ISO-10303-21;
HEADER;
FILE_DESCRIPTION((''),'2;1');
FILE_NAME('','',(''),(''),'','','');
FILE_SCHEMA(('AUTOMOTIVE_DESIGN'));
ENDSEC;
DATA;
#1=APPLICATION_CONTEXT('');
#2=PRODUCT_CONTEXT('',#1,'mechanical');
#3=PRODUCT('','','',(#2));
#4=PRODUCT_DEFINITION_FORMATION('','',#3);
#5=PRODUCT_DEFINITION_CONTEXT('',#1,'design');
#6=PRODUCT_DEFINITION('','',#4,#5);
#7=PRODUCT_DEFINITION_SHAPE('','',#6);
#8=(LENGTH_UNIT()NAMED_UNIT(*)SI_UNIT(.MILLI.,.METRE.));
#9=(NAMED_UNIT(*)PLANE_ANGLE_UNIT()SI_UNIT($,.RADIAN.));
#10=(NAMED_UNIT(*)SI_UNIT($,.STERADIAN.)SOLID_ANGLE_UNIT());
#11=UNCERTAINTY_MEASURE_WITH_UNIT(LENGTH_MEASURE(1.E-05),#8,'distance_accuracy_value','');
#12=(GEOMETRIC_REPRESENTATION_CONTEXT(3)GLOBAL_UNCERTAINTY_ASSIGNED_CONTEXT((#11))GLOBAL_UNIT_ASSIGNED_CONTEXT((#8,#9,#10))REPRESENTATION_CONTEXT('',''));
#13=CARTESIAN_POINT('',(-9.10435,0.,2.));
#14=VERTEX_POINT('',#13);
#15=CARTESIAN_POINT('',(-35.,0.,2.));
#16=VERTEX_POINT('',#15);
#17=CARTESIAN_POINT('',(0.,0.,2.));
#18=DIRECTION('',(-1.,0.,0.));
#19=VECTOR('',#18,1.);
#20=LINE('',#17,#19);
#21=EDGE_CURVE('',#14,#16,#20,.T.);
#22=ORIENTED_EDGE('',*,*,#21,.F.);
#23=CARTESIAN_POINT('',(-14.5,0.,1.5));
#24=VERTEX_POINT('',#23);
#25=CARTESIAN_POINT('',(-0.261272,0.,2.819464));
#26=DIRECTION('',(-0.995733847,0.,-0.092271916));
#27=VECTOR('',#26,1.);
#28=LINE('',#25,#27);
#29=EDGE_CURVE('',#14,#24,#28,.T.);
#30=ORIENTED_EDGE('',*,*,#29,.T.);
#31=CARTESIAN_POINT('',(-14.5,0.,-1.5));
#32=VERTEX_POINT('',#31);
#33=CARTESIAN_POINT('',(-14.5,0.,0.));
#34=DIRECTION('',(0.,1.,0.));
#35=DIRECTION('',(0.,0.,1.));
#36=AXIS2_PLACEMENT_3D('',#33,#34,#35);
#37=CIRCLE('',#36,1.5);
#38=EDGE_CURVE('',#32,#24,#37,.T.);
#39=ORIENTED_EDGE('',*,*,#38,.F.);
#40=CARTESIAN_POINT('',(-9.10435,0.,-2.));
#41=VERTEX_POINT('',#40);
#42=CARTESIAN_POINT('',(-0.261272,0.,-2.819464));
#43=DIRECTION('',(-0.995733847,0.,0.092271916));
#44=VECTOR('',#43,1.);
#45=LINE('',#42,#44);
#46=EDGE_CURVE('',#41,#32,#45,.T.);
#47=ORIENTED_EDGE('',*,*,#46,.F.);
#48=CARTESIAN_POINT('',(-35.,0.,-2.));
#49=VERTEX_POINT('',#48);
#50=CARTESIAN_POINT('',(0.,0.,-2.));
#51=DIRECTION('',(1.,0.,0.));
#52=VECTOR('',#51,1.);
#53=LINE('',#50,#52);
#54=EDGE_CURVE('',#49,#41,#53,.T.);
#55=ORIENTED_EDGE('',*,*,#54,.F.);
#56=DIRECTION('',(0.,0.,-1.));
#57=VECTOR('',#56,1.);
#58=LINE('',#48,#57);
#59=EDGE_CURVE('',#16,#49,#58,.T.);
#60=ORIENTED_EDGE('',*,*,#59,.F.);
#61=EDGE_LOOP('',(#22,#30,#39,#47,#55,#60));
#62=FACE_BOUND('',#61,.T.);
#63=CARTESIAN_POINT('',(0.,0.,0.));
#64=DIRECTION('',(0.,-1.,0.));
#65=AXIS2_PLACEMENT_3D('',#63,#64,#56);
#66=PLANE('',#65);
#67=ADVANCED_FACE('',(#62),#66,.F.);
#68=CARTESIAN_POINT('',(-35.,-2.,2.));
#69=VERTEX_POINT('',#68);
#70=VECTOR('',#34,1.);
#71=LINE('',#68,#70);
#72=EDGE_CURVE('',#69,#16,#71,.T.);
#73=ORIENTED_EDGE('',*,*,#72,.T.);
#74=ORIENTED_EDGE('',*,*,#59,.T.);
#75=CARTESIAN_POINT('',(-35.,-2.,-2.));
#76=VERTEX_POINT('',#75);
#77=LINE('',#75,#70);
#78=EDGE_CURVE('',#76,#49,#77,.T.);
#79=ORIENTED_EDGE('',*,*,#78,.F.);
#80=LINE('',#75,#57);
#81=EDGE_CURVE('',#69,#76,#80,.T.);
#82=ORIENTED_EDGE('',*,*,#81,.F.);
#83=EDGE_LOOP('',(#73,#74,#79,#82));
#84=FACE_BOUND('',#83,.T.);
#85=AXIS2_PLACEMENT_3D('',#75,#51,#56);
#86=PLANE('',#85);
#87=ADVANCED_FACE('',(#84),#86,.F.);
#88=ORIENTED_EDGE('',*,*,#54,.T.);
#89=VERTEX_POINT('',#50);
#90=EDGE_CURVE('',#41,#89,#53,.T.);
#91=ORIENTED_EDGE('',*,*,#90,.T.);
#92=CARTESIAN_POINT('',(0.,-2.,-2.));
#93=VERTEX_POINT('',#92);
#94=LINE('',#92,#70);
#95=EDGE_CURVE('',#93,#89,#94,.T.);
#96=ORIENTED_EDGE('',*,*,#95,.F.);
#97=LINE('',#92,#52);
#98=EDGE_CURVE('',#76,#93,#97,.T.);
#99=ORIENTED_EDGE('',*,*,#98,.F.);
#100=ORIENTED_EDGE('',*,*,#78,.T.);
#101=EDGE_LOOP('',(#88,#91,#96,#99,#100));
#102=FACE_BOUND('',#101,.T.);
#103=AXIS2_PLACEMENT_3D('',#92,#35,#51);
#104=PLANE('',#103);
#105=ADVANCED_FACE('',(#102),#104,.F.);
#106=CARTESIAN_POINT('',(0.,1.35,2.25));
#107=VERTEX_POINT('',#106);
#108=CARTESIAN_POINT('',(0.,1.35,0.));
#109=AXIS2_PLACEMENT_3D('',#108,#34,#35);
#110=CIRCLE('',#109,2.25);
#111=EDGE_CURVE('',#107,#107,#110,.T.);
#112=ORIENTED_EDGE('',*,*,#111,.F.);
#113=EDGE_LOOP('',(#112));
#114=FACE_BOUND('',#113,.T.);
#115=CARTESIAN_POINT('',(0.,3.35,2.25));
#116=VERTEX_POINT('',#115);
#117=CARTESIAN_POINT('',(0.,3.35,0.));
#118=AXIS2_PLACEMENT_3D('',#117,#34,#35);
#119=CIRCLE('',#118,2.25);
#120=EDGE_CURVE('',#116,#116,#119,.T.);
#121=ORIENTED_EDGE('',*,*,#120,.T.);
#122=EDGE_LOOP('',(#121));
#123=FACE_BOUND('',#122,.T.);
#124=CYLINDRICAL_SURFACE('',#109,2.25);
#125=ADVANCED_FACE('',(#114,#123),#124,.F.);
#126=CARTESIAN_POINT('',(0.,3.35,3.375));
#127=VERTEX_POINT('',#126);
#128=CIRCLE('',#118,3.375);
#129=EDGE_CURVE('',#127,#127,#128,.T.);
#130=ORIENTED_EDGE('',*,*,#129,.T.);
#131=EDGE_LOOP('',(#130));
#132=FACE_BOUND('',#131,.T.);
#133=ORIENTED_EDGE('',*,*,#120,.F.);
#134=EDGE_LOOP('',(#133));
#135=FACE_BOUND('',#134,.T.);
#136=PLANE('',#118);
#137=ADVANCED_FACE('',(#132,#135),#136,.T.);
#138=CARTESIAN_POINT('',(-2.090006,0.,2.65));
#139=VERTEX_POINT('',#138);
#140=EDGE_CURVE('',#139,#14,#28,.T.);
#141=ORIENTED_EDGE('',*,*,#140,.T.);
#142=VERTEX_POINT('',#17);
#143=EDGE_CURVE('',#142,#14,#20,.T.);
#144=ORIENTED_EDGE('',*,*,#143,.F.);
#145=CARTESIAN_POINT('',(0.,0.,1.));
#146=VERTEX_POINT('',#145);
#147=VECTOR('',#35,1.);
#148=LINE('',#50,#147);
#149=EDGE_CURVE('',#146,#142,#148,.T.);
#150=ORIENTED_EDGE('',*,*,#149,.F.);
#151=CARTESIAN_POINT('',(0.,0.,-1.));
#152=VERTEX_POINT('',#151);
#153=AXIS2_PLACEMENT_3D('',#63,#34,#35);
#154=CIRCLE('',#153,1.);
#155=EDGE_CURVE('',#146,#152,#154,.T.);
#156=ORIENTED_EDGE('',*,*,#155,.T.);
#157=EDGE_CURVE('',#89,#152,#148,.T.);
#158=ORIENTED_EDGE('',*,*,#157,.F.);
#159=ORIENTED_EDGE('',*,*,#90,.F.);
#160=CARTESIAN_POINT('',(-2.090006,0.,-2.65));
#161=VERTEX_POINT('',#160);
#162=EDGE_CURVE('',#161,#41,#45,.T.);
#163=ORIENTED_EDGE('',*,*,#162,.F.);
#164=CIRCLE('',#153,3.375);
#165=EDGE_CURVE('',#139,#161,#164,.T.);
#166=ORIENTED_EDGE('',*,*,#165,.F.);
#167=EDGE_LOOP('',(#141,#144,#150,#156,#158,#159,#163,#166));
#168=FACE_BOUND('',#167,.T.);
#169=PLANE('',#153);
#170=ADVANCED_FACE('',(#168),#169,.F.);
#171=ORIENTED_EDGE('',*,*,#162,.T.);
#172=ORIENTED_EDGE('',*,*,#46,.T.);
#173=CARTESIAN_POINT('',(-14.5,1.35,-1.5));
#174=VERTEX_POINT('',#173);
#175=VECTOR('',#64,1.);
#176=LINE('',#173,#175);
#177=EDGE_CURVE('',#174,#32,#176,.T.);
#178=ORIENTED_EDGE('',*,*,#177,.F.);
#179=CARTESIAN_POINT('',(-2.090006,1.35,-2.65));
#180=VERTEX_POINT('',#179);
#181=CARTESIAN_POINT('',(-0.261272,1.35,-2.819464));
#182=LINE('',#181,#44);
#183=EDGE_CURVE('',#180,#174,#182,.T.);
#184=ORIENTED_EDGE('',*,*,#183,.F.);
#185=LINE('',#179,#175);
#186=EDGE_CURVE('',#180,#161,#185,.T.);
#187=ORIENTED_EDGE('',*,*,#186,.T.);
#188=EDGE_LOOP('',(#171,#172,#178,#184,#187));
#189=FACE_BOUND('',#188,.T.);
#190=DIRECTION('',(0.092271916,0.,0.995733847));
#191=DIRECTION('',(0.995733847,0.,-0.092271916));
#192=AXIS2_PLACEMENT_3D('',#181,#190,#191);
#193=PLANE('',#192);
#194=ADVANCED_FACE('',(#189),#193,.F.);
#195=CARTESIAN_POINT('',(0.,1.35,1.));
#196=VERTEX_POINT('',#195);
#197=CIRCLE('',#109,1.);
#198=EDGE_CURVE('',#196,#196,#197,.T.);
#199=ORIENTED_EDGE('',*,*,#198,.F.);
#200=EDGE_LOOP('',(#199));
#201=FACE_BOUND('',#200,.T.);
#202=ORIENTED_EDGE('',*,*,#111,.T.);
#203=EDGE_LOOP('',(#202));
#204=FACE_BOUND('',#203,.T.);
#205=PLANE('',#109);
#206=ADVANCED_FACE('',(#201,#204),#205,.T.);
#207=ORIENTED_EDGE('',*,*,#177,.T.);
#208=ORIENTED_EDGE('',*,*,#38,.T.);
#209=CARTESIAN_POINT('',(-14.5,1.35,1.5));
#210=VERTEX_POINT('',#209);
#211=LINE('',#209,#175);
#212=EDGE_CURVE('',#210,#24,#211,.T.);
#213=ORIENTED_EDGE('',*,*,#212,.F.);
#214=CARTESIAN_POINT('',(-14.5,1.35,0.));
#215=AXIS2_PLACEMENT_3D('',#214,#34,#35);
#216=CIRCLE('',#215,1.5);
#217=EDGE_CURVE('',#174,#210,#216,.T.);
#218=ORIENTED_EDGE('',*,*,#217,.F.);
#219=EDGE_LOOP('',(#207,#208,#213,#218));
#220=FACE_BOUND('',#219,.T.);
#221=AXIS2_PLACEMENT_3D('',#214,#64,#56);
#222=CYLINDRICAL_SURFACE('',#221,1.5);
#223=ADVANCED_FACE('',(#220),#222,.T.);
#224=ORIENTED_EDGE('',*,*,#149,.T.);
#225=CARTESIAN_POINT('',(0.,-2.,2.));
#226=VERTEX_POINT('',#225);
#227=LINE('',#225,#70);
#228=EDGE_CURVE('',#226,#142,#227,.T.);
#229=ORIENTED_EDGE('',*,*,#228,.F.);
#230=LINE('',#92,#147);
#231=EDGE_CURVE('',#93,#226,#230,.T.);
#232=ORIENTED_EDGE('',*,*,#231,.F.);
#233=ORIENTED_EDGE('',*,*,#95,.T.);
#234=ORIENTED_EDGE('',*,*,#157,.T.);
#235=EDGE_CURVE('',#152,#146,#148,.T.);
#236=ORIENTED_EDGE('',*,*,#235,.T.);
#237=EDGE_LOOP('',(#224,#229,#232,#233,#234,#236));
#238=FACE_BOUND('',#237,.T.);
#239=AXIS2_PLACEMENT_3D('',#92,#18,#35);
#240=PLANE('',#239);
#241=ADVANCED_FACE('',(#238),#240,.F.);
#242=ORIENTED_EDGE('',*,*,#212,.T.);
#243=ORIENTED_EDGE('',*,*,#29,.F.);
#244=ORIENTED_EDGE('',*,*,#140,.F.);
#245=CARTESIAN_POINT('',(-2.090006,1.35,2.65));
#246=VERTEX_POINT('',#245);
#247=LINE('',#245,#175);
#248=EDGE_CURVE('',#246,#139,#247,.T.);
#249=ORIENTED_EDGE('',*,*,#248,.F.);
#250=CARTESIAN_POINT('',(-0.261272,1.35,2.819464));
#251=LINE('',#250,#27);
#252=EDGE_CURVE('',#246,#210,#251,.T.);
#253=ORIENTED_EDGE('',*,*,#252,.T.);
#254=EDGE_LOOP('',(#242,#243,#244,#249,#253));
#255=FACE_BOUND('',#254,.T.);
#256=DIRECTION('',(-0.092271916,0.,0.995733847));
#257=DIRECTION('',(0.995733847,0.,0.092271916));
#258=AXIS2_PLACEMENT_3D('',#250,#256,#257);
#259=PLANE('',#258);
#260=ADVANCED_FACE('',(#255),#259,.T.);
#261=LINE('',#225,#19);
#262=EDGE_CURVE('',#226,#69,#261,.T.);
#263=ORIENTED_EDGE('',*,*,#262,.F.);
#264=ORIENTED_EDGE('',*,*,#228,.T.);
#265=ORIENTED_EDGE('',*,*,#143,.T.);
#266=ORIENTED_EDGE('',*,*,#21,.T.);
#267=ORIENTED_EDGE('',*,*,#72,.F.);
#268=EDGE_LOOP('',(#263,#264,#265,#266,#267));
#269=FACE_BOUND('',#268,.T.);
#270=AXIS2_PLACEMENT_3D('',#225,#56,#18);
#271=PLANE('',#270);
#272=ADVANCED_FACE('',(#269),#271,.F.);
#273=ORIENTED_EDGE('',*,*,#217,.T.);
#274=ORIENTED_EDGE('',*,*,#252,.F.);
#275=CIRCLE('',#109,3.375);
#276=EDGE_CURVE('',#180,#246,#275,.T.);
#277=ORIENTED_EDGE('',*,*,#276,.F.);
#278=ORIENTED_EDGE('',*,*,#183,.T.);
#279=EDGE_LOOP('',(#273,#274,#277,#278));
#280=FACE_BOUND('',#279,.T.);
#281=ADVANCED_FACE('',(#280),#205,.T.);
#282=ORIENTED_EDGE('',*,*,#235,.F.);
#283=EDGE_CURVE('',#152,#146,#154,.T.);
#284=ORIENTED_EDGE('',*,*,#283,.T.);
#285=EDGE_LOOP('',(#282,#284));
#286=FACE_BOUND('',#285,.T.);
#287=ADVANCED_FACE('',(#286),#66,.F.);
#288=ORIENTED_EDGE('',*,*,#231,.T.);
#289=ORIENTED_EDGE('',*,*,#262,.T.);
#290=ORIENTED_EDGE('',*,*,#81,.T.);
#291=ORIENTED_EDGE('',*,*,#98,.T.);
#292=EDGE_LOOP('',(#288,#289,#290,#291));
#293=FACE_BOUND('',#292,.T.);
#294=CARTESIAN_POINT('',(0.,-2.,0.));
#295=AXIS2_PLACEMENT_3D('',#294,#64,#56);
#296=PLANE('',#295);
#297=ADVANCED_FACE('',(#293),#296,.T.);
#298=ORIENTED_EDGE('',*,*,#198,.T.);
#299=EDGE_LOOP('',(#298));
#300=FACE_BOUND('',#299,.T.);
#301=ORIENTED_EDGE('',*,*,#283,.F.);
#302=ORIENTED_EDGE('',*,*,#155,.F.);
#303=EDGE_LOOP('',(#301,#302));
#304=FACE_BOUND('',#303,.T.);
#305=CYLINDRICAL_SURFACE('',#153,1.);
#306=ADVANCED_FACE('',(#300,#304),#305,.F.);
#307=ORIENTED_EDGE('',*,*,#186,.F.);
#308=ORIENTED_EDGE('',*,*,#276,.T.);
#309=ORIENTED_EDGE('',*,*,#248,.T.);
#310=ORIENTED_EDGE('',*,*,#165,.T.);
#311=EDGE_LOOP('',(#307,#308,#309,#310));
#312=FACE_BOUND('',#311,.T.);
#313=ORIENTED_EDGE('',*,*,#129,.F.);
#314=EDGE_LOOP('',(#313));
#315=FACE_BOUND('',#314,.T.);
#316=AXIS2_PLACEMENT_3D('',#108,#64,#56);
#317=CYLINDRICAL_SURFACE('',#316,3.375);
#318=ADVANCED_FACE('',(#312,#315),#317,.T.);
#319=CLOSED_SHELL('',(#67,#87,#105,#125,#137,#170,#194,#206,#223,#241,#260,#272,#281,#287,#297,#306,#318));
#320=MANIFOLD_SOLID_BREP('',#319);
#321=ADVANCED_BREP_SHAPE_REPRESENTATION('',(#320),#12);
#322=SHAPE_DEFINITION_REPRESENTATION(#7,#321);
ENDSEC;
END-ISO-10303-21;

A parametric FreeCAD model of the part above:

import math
import FreeCAD as App
import Part
import Sketcher

V = App.Vector

doc = App.newDocument("Part")
body = doc.addObject("PartDesign::Body", "Body")

sketch1 = doc.addObject("Sketcher::SketchObject", "Sketch")
body.addObject(sketch1)
sketch1.AttachmentSupport = (doc.XZ_Plane, [""])
sketch1.MapMode = "FlatFace"
sketch1.addGeometry(Part.ArcOfCircle(Part.Circle(V(-14.5, 0, 0), V(0, 0, 1), 1.5), math.radians(90), math.radians(270)), False)
sketch1.addGeometry(Part.LineSegment(V(-14.5, 1.5, 0), V(-2.1, 2.6, 0)), False)
sketch1.addGeometry(Part.ArcOfCircle(Part.Circle(V(0, 0, 0), V(0, 0, 1), 3.4), math.radians(0), math.radians(128)), False)
sketch1.addGeometry(Part.ArcOfCircle(Part.Circle(V(0, 0, 0), V(0, 0, 1), 3.4), math.radians(-128), math.radians(0)), False)
sketch1.addGeometry(Part.LineSegment(V(-2.1, -2.6, 0), V(-14.5, -1.5, 0)), False)
sketch1.addConstraint(Sketcher.Constraint("Coincident", 0, 1, 1, 1))
sketch1.addConstraint(Sketcher.Constraint("Coincident", 1, 2, 2, 2))
sketch1.addConstraint(Sketcher.Constraint("Tangent", 2, 1, 3, 2))
sketch1.addConstraint(Sketcher.Constraint("Coincident", 3, 1, 4, 1))
sketch1.addConstraint(Sketcher.Constraint("Coincident", 4, 2, 0, 2))
sketch1.addConstraint(Sketcher.Constraint("Coincident", 2, 3, -1, 1))
sketch1.addConstraint(Sketcher.Constraint("Equal", 2, 3))
sketch1.addConstraint(Sketcher.Constraint("Symmetric", 0, 1, 4, 2, -1))
sketch1.addConstraint(Sketcher.Constraint("PointOnObject", 2, 1, -1))
sketch1.addConstraint(Sketcher.Constraint("Vertical", 1, 2, 3, 1))
sketch1.addConstraint(Sketcher.Constraint("Radius", 0, 1.5))
sketch1.addConstraint(Sketcher.Constraint("Radius", 2, 3.375))
sketch1.addConstraint(Sketcher.Constraint("DistanceX", 0, 3, -1, 1, 14.5))
sketch1.addConstraint(Sketcher.Constraint("DistanceX", 0, 1, -1, 1, 14.5))
sketch1.addConstraint(Sketcher.Constraint("DistanceY", 3, 1, 1, 2, 5.3))
pad1 = doc.addObject("PartDesign::Pad", "Pad")
body.addObject(pad1)
pad1.Profile = sketch1
pad1.Length = 1.35
pad1.Reversed = True

sketch2 = doc.addObject("Sketcher::SketchObject", "Sketch001")
body.addObject(sketch2)
sketch2.AttachmentSupport = (doc.XZ_Plane, [""])
sketch2.MapMode = "FlatFace"
sketch2.AttachmentOffset = App.Placement(V(0, 0, -1.35), App.Rotation())
sketch2.addGeometry(Part.Circle(V(0, 0, 0), V(0, 0, 1), 3.4), False)
sketch2.addConstraint(Sketcher.Constraint("Coincident", 0, 3, -1, 1))
sketch2.addConstraint(Sketcher.Constraint("Diameter", 0, 6.75))
pad2 = doc.addObject("PartDesign::Pad", "Pad001")
body.addObject(pad2)
pad2.Profile = sketch2
pad2.Length = 2
pad2.Reversed = True

sketch3 = doc.addObject("Sketcher::SketchObject", "Sketch002")
body.addObject(sketch3)
sketch3.AttachmentSupport = (doc.XZ_Plane, [""])
sketch3.MapMode = "FlatFace"
sketch3.AttachmentOffset = App.Placement(V(0, 0, -3.35), App.Rotation())
sketch3.addGeometry(Part.Circle(V(0, 0, 0), V(0, 0, 1), 2.2), False)
sketch3.addConstraint(Sketcher.Constraint("Coincident", 0, 3, -1, 1))
sketch3.addConstraint(Sketcher.Constraint("Diameter", 0, 4.5))
pocket1 = doc.addObject("PartDesign::Pocket", "Pocket")
body.addObject(pocket1)
pocket1.Profile = sketch3
pocket1.Length = 2
pocket1.Reversed = True

sketch4 = doc.addObject("Sketcher::SketchObject", "Sketch003")
body.addObject(sketch4)
sketch4.AttachmentSupport = (doc.XZ_Plane, [""])
sketch4.MapMode = "FlatFace"
sketch4.AttachmentOffset = App.Placement(V(0, 0, -1.35), App.Rotation())
sketch4.addGeometry(Part.Circle(V(0, 0, 0), V(0, 0, 1), 1), False)
sketch4.addConstraint(Sketcher.Constraint("Coincident", 0, 3, -1, 1))
sketch4.addConstraint(Sketcher.Constraint("Diameter", 0, 2.0))
pocket2 = doc.addObject("PartDesign::Pocket", "Pocket001")
body.addObject(pocket2)
pocket2.Profile = sketch4
pocket2.Type = "ThroughAll"
pocket2.Reversed = True

sketch5 = doc.addObject("Sketcher::SketchObject", "Sketch004")
body.addObject(sketch5)
sketch5.AttachmentSupport = (doc.XZ_Plane, [""])
sketch5.MapMode = "FlatFace"
sketch5.addGeometry(Part.LineSegment(V(-35, 2, 0), V(-35, -2, 0)), False)
sketch5.addGeometry(Part.LineSegment(V(-35, -2, 0), V(0, -2, 0)), False)
sketch5.addGeometry(Part.LineSegment(V(0, -2, 0), V(0, 2, 0)), False)
sketch5.addGeometry(Part.LineSegment(V(0, 2, 0), V(-35, 2, 0)), False)
sketch5.addConstraint(Sketcher.Constraint("Coincident", 0, 2, 1, 1))
sketch5.addConstraint(Sketcher.Constraint("Coincident", 1, 2, 2, 1))
sketch5.addConstraint(Sketcher.Constraint("Coincident", 2, 2, 3, 1))
sketch5.addConstraint(Sketcher.Constraint("Coincident", 3, 2, 0, 1))
sketch5.addConstraint(Sketcher.Constraint("Vertical", 0))
sketch5.addConstraint(Sketcher.Constraint("Horizontal", 1))
sketch5.addConstraint(Sketcher.Constraint("Vertical", 2))
sketch5.addConstraint(Sketcher.Constraint("Horizontal", 3))
sketch5.addConstraint(Sketcher.Constraint("Symmetric", 1, 2, 2, 2, -1, 1))
sketch5.addConstraint(Sketcher.Constraint("DistanceX", 1, 1, 1, 2, 35.0))
sketch5.addConstraint(Sketcher.Constraint("DistanceY", 0, 2, 0, 1, 4.0))
pad3 = doc.addObject("PartDesign::Pad", "Pad002")
body.addObject(pad3)
pad3.Profile = sketch5
pad3.Length = 2

doc.recompute()
